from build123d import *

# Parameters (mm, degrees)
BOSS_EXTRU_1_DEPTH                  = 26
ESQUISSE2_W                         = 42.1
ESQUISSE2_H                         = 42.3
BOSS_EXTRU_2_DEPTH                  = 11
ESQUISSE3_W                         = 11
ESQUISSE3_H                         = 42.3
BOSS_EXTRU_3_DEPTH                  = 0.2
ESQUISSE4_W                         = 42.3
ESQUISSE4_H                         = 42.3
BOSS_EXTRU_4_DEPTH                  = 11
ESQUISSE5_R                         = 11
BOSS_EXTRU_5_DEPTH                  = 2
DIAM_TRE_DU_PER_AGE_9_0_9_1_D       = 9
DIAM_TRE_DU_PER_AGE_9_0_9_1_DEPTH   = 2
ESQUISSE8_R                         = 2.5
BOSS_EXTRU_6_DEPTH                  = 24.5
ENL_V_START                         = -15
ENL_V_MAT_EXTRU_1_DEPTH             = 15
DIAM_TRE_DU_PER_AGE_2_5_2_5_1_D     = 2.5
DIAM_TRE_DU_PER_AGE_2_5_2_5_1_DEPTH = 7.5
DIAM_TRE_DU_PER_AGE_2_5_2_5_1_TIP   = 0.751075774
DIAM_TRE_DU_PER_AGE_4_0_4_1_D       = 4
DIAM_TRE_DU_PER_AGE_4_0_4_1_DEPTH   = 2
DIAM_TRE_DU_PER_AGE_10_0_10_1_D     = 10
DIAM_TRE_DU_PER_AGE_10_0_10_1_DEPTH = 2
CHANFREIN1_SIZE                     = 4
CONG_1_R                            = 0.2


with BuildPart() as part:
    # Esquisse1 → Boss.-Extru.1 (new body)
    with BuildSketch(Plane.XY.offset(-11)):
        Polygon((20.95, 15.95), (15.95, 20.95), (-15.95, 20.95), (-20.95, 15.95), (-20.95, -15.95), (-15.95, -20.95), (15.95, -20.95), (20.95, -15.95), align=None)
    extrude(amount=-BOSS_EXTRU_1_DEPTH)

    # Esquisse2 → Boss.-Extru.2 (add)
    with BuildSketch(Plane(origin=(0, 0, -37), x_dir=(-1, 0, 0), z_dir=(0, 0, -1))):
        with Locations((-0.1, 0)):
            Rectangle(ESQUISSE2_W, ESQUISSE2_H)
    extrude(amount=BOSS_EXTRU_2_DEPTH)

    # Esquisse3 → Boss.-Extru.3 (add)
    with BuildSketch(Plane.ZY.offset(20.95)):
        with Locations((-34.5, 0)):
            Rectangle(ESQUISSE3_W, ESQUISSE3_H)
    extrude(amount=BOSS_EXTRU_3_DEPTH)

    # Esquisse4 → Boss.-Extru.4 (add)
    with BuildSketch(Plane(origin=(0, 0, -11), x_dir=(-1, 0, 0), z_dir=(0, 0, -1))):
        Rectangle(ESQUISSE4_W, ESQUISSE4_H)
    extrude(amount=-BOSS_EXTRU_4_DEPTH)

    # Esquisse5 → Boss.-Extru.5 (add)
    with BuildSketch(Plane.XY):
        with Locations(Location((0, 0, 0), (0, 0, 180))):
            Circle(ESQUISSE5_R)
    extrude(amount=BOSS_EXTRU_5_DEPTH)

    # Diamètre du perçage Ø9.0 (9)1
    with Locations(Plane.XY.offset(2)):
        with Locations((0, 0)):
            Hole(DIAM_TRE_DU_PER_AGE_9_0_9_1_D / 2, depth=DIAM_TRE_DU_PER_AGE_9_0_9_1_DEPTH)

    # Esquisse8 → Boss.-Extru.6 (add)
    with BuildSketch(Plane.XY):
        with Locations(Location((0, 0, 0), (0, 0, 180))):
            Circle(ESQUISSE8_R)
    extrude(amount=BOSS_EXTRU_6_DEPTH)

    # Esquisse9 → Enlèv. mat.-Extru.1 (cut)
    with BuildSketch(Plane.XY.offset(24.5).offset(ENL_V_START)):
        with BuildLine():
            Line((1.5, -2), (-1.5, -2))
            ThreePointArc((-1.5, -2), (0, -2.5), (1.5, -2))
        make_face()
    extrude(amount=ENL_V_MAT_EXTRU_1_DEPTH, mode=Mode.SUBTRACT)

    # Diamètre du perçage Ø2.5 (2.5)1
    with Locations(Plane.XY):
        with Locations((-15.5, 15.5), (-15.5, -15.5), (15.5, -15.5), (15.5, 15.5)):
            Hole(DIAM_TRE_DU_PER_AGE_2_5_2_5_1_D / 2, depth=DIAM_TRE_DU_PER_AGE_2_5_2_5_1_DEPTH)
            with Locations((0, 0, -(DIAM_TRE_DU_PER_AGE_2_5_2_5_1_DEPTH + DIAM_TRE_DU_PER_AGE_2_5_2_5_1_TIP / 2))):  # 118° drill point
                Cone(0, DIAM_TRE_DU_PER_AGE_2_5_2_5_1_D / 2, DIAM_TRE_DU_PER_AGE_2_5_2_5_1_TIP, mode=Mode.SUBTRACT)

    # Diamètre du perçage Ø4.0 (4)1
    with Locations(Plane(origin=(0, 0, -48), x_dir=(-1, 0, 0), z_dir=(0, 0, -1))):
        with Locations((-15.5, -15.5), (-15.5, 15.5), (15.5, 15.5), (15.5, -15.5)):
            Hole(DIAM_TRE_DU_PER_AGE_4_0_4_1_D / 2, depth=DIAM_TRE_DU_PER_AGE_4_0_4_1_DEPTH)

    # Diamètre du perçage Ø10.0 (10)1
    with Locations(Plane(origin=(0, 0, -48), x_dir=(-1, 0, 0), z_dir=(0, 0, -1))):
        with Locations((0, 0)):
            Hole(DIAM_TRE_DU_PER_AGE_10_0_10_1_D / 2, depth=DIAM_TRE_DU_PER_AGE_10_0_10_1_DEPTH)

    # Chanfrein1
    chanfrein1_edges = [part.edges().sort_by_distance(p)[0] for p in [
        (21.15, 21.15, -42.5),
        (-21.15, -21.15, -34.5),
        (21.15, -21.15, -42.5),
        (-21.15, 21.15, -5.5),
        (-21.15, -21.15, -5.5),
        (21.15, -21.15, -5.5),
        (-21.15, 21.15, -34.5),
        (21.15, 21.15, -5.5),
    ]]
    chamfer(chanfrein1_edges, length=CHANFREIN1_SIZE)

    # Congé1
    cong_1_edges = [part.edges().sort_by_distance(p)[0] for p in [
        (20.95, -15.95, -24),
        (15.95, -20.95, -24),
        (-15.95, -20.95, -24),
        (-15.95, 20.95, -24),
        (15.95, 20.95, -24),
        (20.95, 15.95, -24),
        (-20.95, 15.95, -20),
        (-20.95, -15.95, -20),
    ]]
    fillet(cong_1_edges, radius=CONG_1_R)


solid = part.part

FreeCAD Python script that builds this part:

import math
import FreeCAD as App
import Part
import Sketcher


def edges_at(feature, points):
    """Names of the edges that pass closest to the given points."""
    edges = feature.Shape.Edges
    near = lambda p: min(range(len(edges)), key=lambda i: edges[i].distToShape(Part.Vertex(*p))[0])
    return sorted({f"Edge{near(p) + 1}" for p in points})

doc = App.newDocument("Part")
params = doc.addObject("Spreadsheet::Sheet", "Params")
for row, (alias, value) in enumerate([
    ("sketch1_width", "31.9 mm"),
    ("pad1_length", "26 mm"),
    ("sketch2_width", "42.1 mm"),
    ("sketch2_height", "42.3 mm"),
    ("pad2_length", "11 mm"),
    ("sketch3_height", "11 mm"),
    ("sketch3_width", "42.3 mm"),
    ("pad3_length", "0.2 mm"),
    ("sketch4_width", "42.3 mm"),
    ("pad4_length", "11 mm"),
    ("sketch5_diameter", "22 mm"),
    ("pad5_length", "2 mm"),
    ("sketch6_diameter", "9 mm"),
    ("hole_diameter", "9 mm"),
    ("hole_depth", "2 mm"),
    ("sketch7_diameter", "5 mm"),
    ("pad6_length", "24.5 mm"),
    ("sketch8_radius", "2.5 mm"),
    ("sketch8_width", "3 mm"),
    ("pocket1_length", "15 mm"),
    ("sketch9_diameter", "2.5 mm"),
    ("hole2_diameter", "2.5 mm"),
    ("hole2_depth", "7.5 mm"),
    ("sketch10_diameter", "4 mm"),
    ("hole3_diameter", "4 mm"),
    ("hole3_depth", "2 mm"),
    ("sketch11_diameter", "10 mm"),
    ("hole4_diameter", "10 mm"),
    ("hole4_depth", "2 mm"),
    ("chamfer_size", "4 mm"),
    ("fillet_radius", "0.2 mm"),
], start=1):
    params.set(f"A{row}", alias)
    params.set(f"B{row}", "=" + value)
    params.setAlias(f"B{row}", alias)

body = doc.addObject("PartDesign::Body", "Body")

sketch1 = body.newObject("Sketcher::SketchObject", "Sketch")
sketch1.AttachmentSupport = (doc.getObject("XY_Plane"), [""])
sketch1.MapMode = "FlatFace"
sketch1.AttachmentOffset = App.Placement(App.Vector(0, 0, -11), App.Rotation())
sketch1.addGeometry([
    Part.LineSegment(App.Vector(20.95, 15.95, 0), App.Vector(15.95, 20.95, 0)),
    Part.LineSegment(App.Vector(15.95, 20.95, 0), App.Vector(-15.95, 20.95, 0)),
    Part.LineSegment(App.Vector(-15.95, 20.95, 0), App.Vector(-20.95, 15.95, 0)),
    Part.LineSegment(App.Vector(-20.95, 15.95, 0), App.Vector(-20.95, -15.95, 0)),
    Part.LineSegment(App.Vector(-20.95, -15.95, 0), App.Vector(-15.95, -20.95, 0)),
    Part.LineSegment(App.Vector(-15.95, -20.95, 0), App.Vector(15.95, -20.95, 0)),
    Part.LineSegment(App.Vector(15.95, -20.95, 0), App.Vector(20.95, -15.95, 0)),
    Part.LineSegment(App.Vector(20.95, -15.95, 0), App.Vector(20.95, 15.95, 0)),
], False)
sketch1.addConstraint([
    Sketcher.Constraint("Coincident", 0, 2, 1, 1),
    Sketcher.Constraint("Coincident", 1, 2, 2, 1),
    Sketcher.Constraint("Coincident", 2, 2, 3, 1),
    Sketcher.Constraint("Coincident", 3, 2, 4, 1),
    Sketcher.Constraint("Coincident", 4, 2, 5, 1),
    Sketcher.Constraint("Coincident", 5, 2, 6, 1),
    Sketcher.Constraint("Coincident", 6, 2, 7, 1),
    Sketcher.Constraint("Coincident", 7, 2, 0, 1),
    Sketcher.Constraint("Horizontal", 1),
    Sketcher.Constraint("Vertical", 3),
    Sketcher.Constraint("Horizontal", 5),
    Sketcher.Constraint("Vertical", 7),
    Sketcher.Constraint("Symmetric", 0, 2, 4, 2, -1, 1),
    Sketcher.Constraint("Symmetric", 2, 2, 6, 2, -1, 1),
    Sketcher.Constraint("Perpendicular", 0, 2),
    Sketcher.Constraint("Perpendicular", 2, 4),
    Sketcher.Constraint("Perpendicular", 4, 6),
    Sketcher.Constraint("Horizontal", 3, 2, 6, 2),
    Sketcher.Constraint("Vertical", 1, 2, 4, 2),
    Sketcher.Constraint("Equal", 5, 3),
    Sketcher.Constraint("DistanceX", 1, 2, 1, 1, 31.9),
    Sketcher.Constraint("DistanceX", 2, 2, 1, 2, 5.0),
])
sketch1.setExpression("Constraints[20]", "Params.sketch1_width")
pad1 = body.newObject("PartDesign::Pad", "Pad")
pad1.Profile = sketch1
pad1.setExpression("Length", "Params.pad1_length")
pad1.Reversed = True

sketch2 = body.newObject("Sketcher::SketchObject", "Sketch001")
sketch2.AttachmentSupport = (doc.getObject("XY_Plane"), [""])
sketch2.MapMode = "FlatFace"
sketch2.AttachmentOffset = App.Placement(App.Vector(0, 0, -37), App.Rotation())
sketch2.addGeometry([
    Part.LineSegment(App.Vector(21.15, 21.15, 0), App.Vector(21.15, -21.15, 0)),
    Part.LineSegment(App.Vector(21.15, -21.15, 0), App.Vector(-20.95, -21.15, 0)),
    Part.LineSegment(App.Vector(-20.95, -21.15, 0), App.Vector(-20.95, 21.15, 0)),
    Part.LineSegment(App.Vector(-20.95, 21.15, 0), App.Vector(21.15, 21.15, 0)),
], False)
sketch2.addConstraint([
    Sketcher.Constraint("Coincident", 0, 2, 1, 1),
    Sketcher.Constraint("Coincident", 1, 2, 2, 1),
    Sketcher.Constraint("Coincident", 2, 2, 3, 1),
    Sketcher.Constraint("Coincident", 3, 2, 0, 1),
    Sketcher.Constraint("Vertical", 0),
    Sketcher.Constraint("Horizontal", 1),
    Sketcher.Constraint("Vertical", 2),
    Sketcher.Constraint("Horizontal", 3),
    Sketcher.Constraint("DistanceX", 1, 2, 1, 1, 42.1),
    Sketcher.Constraint("DistanceY", 0, 2, 0, 1, 42.3),
    Sketcher.Constraint("DistanceX", -1, 1, 0, 2, 21.15),
    Sketcher.Constraint("DistanceY", 0, 2, -1, 1, 21.15),
])
sketch2.setExpression("Constraints[8]", "Params.sketch2_width")
sketch2.setExpression("Constraints[9]", "Params.sketch2_height")
pad2 = body.newObject("PartDesign::Pad", "Pad001")
pad2.Profile = sketch2
pad2.setExpression("Length", "Params.pad2_length")
pad2.Reversed = True

sketch3 = body.newObject("Sketcher::SketchObject", "Sketch002")
sketch3.AttachmentSupport = (doc.getObject("YZ_Plane"), [""])
sketch3.MapMode = "FlatFace"
sketch3.AttachmentOffset = App.Placement(App.Vector(0, 0, -20.95), App.Rotation())
sketch3.addGeometry([
    Part.LineSegment(App.Vector(21.15, -40, 0), App.Vector(-21.15, -40, 0)),
    Part.LineSegment(App.Vector(-21.15, -40, 0), App.Vector(-21.15, -29, 0)),
    Part.LineSegment(App.Vector(-21.15, -29, 0), App.Vector(21.15, -29, 0)),
    Part.LineSegment(App.Vector(21.15, -29, 0), App.Vector(21.15, -40, 0)),
], False)
sketch3.addConstraint([
    Sketcher.Constraint("Coincident", 0, 2, 1, 1),
    Sketcher.Constraint("Coincident", 1, 2, 2, 1),
    Sketcher.Constraint("Coincident", 2, 2, 3, 1),
    Sketcher.Constraint("Coincident", 3, 2, 0, 1),
    Sketcher.Constraint("Horizontal", 0),
    Sketcher.Constraint("Vertical", 1),
    Sketcher.Constraint("Horizontal", 2),
    Sketcher.Constraint("Vertical", 3),
    Sketcher.Constraint("DistanceY", 1, 1, 1, 2, 11.0),
    Sketcher.Constraint("DistanceX", 0, 2, 0, 1, 42.3),
    Sketcher.Constraint("DistanceY", 0, 2, -1, 1, 40.0),
    Sketcher.Constraint("DistanceX", 0, 2, -1, 1, 21.15),
])
sketch3.setExpression("Constraints[8]", "Params.sketch3_height")
sketch3.setExpression("Constraints[9]", "Params.sketch3_width")
pad3 = body.newObject("PartDesign::Pad", "Pad002")
pad3.Profile = sketch3
pad3.setExpression("Length", "Params.pad3_length")
pad3.Reversed = True

sketch4 = body.newObject("Sketcher::SketchObject", "Sketch003")
sketch4.AttachmentSupport = (doc.getObject("XY_Plane"), [""])
sketch4.MapMode = "FlatFace"
sketch4.AttachmentOffset = App.Placement(App.Vector(0, 0, -11), App.Rotation())
sketch4.addGeometry([
    Part.LineSegment(App.Vector(21.15, 21.15, 0), App.Vector(21.15, -21.15, 0)),
    Part.LineSegment(App.Vector(21.15, -21.15, 0), App.Vector(-21.15, -21.15, 0)),
    Part.LineSegment(App.Vector(-21.15, -21.15, 0), App.Vector(-21.15, 21.15, 0)),
    Part.LineSegment(App.Vector(-21.15, 21.15, 0), App.Vector(21.15, 21.15, 0)),
], False)
sketch4.addConstraint([
    Sketcher.Constraint("Coincident", 0, 2, 1, 1),
    Sketcher.Constraint("Coincident", 1, 2, 2, 1),
    Sketcher.Constraint("Coincident", 2, 2, 3, 1),
    Sketcher.Constraint("Coincident", 3, 2, 0, 1),
    Sketcher.Constraint("Vertical", 0),
    Sketcher.Constraint("Horizontal", 1),
    Sketcher.Constraint("Vertical", 2),
    Sketcher.Constraint("Horizontal", 3),
    Sketcher.Constraint("Symmetric", 0, 2, 2, 2, -1, 1),
    Sketcher.Constraint("Equal", 3, 0),
    Sketcher.Constraint("DistanceX", 1, 2, 1, 1, 42.3),
])
sketch4.setExpression("Constraints[10]", "Params.sketch4_width")
pad4 = body.newObject("PartDesign::Pad", "Pad003")
pad4.Profile = sketch4
pad4.setExpression("Length", "Params.pad4_length")

sketch5 = body.newObject("Sketcher::SketchObject", "Sketch004")
sketch5.AttachmentSupport = (doc.getObject("XY_Plane"), [""])
sketch5.MapMode = "FlatFace"
sketch5.addGeometry(Part.Circle(App.Vector(0, 0, 0), App.Vector(0, 0, 1), 11), False)
sketch5.addConstraint([
    Sketcher.Constraint("Coincident", 0, 3, -1, 1),
    Sketcher.Constraint("Diameter", 0, 22.0),
])
sketch5.setExpression("Constraints[1]", "Params.sketch5_diameter")
pad5 = body.newObject("PartDesign::Pad", "Pad004")
pad5.Profile = sketch5
pad5.setExpression("Length", "Params.pad5_length")

sketch6 = body.newObject("Sketcher::SketchObject", "Sketch005")
sketch6.AttachmentSupport = (doc.getObject("XY_Plane"), [""])
sketch6.MapMode = "FlatFace"
sketch6.AttachmentOffset = App.Placement(App.Vector(0, 0, 2), App.Rotation())
sketch6.addGeometry(Part.Circle(App.Vector(0, 0, 0), App.Vector(0, 0, 1), 4.5), False)
sketch6.addConstraint([
    Sketcher.Constraint("Coincident", 0, 3, -1, 1),
    Sketcher.Constraint("Diameter", 0, 9.0),
])
sketch6.setExpression("Constraints[1]", "Params.sketch6_diameter")
doc.recompute()
hole = body.newObject("PartDesign::Hole", "Hole")
hole.Profile = sketch6
hole.ThreadType = "None"
hole.setExpression("Diameter", "Params.hole_diameter")
hole.DepthType = "Dimension"
hole.setExpression("Depth", "Params.hole_depth")
hole.DrillPoint = "Flat"

sketch7 = body.newObject("Sketcher::SketchObject", "Sketch006")
sketch7.AttachmentSupport = (doc.getObject("XY_Plane"), [""])
sketch7.MapMode = "FlatFace"
sketch7.addGeometry(Part.Circle(App.Vector(0, 0, 0), App.Vector(0, 0, 1), 2.5), False)
sketch7.addConstraint([
    Sketcher.Constraint("Coincident", 0, 3, -1, 1),
    Sketcher.Constraint("Diameter", 0, 5.0),
])
sketch7.setExpression("Constraints[1]", "Params.sketch7_diameter")
pad6 = body.newObject("PartDesign::Pad", "Pad005")
pad6.Profile = sketch7
pad6.setExpression("Length", "Params.pad6_length")

sketch8 = body.newObject("Sketcher::SketchObject", "Sketch007")
sketch8.AttachmentSupport = (doc.getObject("XY_Plane"), [""])
sketch8.MapMode = "FlatFace"
sketch8.AttachmentOffset = App.Placement(App.Vector(0, 0, 9.5), App.Rotation())
sketch8.addGeometry([
    Part.LineSegment(App.Vector(1.5, -2, 0), App.Vector(-1.5, -2, 0)),
    Part.ArcOfCircle(Part.Circle(App.Vector(0, 0, 0), App.Vector(0, 0, 1), 2.5), math.radians(-126.869898), math.radians(-53.130102)),
], False)
sketch8.addConstraint([
    Sketcher.Constraint("Coincident", 0, 1, 1, 2),
    Sketcher.Constraint("Coincident", 1, 1, 0, 2),
    Sketcher.Constraint("Horizontal", 0),
    Sketcher.Constraint("Coincident", 1, 3, -1, 1),
    Sketcher.Constraint("Radius", 1, 2.5),
    Sketcher.Constraint("DistanceX", 0, 2, 0, 1, 3.0),
])
sketch8.setExpression("Constraints[4]", "Params.sketch8_radius")
sketch8.setExpression("Constraints[5]", "Params.sketch8_width")
pocket1 = body.newObject("PartDesign::Pocket", "Pocket")
pocket1.Profile = sketch8
pocket1.setExpression("Length", "Params.pocket1_length")
pocket1.Reversed = True

sketch9 = body.newObject("Sketcher::SketchObject", "Sketch008")
sketch9.AttachmentSupport = (doc.getObject("XY_Plane"), [""])
sketch9.MapMode = "FlatFace"
sketch9.addGeometry([
    Part.Circle(App.Vector(-15.5, 15.5, 0), App.Vector(0, 0, 1), 1.25),
    Part.Circle(App.Vector(-15.5, -15.5, 0), App.Vector(0, 0, 1), 1.25),
    Part.Circle(App.Vector(15.5, -15.5, 0), App.Vector(0, 0, 1), 1.25),
    Part.Circle(App.Vector(15.5, 15.5, 0), App.Vector(0, 0, 1), 1.25),
], False)
sketch9.addConstraint([
    Sketcher.Constraint("Equal", 0, 1),
    Sketcher.Constraint("Equal", 1, 2),
    Sketcher.Constraint("Equal", 2, 3),
    Sketcher.Constraint("Symmetric", 0, 3, 2, 3, -1, 1),
    Sketcher.Constraint("Symmetric", 1, 3, 3, 3, -1, 1),
    Sketcher.Constraint("Symmetric", 1, 3, 2, 3, -2),
    Sketcher.Constraint("Diameter", 0, 2.5),
    Sketcher.Constraint("DistanceY", 1, 3, 0, 3, 31.0),
    Sketcher.Constraint("DistanceX", 1, 3, 2, 3, 31.0),
])
sketch9.setExpression("Constraints[6]", "Params.sketch9_diameter")
doc.recompute()
hole2 = body.newObject("PartDesign::Hole", "Hole001")
hole2.Profile = sketch9
hole2.ThreadType = "None"
hole2.setExpression("Diameter", "Params.hole2_diameter")
hole2.DepthType = "Dimension"
hole2.setExpression("Depth", "Params.hole2_depth")
hole2.DrillPoint = "Angled"
hole2.DrillPointAngle = 118

sketch10 = body.newObject("Sketcher::SketchObject", "Sketch009")
sketch10.AttachmentSupport = (doc.getObject("XY_Plane"), [""])
sketch10.MapMode = "FlatFace"
sketch10.AttachmentOffset = App.Placement(App.Vector(0, 0, -48), App.Rotation())
sketch10.addGeometry([
    Part.Circle(App.Vector(15.5, -15.5, 0), App.Vector(0, 0, 1), 2),
    Part.Circle(App.Vector(15.5, 15.5, 0), App.Vector(0, 0, 1), 2),
    Part.Circle(App.Vector(-15.5, 15.5, 0), App.Vector(0, 0, 1), 2),
    Part.Circle(App.Vector(-15.5, -15.5, 0), App.Vector(0, 0, 1), 2),
], False)
sketch10.addConstraint([
    Sketcher.Constraint("Equal", 0, 1),
    Sketcher.Constraint("Equal", 1, 2),
    Sketcher.Constraint("Equal", 2, 3),
    Sketcher.Constraint("Symmetric", 0, 3, 2, 3, -1, 1),
    Sketcher.Constraint("Symmetric", 1, 3, 3, 3, -1, 1),
    Sketcher.Constraint("Symmetric", 1, 3, 2, 3, -2),
    Sketcher.Constraint("Diameter", 0, 4.0),
    Sketcher.Constraint("DistanceY", 0, 3, 1, 3, 31.0),
    Sketcher.Constraint("DistanceX", 2, 3, 1, 3, 31.0),
])
sketch10.setExpression("Constraints[6]", "Params.sketch10_diameter")
doc.recompute()
hole3 = body.newObject("PartDesign::Hole", "Hole002")
hole3.Profile = sketch10
hole3.ThreadType = "None"
hole3.setExpression("Diameter", "Params.hole3_diameter")
hole3.DepthType = "Dimension"
hole3.setExpression("Depth", "Params.hole3_depth")
hole3.DrillPoint = "Flat"
hole3.Reversed = True

sketch11 = body.newObject("Sketcher::SketchObject", "Sketch010")
sketch11.AttachmentSupport = (doc.getObject("XY_Plane"), [""])
sketch11.MapMode = "FlatFace"
sketch11.AttachmentOffset = App.Placement(App.Vector(0, 0, -48), App.Rotation())
sketch11.addGeometry(Part.Circle(App.Vector(0, 0, 0), App.Vector(0, 0, 1), 5), False)
sketch11.addConstraint([
    Sketcher.Constraint("Coincident", 0, 3, -1, 1),
    Sketcher.Constraint("Diameter", 0, 10.0),
])
sketch11.setExpression("Constraints[1]", "Params.sketch11_diameter")
doc.recompute()
hole4 = body.newObject("PartDesign::Hole", "Hole003")
hole4.Profile = sketch11
hole4.ThreadType = "None"
hole4.setExpression("Diameter", "Params.hole4_diameter")
hole4.DepthType = "Dimension"
hole4.setExpression("Depth", "Params.hole4_depth")
hole4.DrillPoint = "Flat"
hole4.Reversed = True
doc.recompute()

chamfer = body.newObject("PartDesign::Chamfer", "Chamfer")
chamfer.Base = (hole4, edges_at(hole4, [
    (21.15, 21.15, -42.5),
    (-21.15, -21.15, -34.5),
    (21.15, -21.15, -42.5),
    (-21.15, 21.15, -5.5),
    (-21.15, -21.15, -5.5),
    (21.15, -21.15, -5.5),
    (-21.15, 21.15, -34.5),
    (21.15, 21.15, -5.5),
]))
chamfer.setExpression("Size", "Params.chamfer_size")
doc.recompute()

fillet = body.newObject("PartDesign::Fillet", "Fillet")
fillet.Base = (chamfer, edges_at(chamfer, [
    (20.95, -15.95, -24),
    (15.95, -20.95, -24),
    (-15.95, -20.95, -24),
    (-15.95, 20.95, -24),
    (15.95, 20.95, -24),
    (20.95, 15.95, -24),
    (-20.95, 15.95, -20),
    (-20.95, -15.95, -20),
]))
fillet.setExpression("Radius", "Params.fillet_radius")

doc.recompute()
